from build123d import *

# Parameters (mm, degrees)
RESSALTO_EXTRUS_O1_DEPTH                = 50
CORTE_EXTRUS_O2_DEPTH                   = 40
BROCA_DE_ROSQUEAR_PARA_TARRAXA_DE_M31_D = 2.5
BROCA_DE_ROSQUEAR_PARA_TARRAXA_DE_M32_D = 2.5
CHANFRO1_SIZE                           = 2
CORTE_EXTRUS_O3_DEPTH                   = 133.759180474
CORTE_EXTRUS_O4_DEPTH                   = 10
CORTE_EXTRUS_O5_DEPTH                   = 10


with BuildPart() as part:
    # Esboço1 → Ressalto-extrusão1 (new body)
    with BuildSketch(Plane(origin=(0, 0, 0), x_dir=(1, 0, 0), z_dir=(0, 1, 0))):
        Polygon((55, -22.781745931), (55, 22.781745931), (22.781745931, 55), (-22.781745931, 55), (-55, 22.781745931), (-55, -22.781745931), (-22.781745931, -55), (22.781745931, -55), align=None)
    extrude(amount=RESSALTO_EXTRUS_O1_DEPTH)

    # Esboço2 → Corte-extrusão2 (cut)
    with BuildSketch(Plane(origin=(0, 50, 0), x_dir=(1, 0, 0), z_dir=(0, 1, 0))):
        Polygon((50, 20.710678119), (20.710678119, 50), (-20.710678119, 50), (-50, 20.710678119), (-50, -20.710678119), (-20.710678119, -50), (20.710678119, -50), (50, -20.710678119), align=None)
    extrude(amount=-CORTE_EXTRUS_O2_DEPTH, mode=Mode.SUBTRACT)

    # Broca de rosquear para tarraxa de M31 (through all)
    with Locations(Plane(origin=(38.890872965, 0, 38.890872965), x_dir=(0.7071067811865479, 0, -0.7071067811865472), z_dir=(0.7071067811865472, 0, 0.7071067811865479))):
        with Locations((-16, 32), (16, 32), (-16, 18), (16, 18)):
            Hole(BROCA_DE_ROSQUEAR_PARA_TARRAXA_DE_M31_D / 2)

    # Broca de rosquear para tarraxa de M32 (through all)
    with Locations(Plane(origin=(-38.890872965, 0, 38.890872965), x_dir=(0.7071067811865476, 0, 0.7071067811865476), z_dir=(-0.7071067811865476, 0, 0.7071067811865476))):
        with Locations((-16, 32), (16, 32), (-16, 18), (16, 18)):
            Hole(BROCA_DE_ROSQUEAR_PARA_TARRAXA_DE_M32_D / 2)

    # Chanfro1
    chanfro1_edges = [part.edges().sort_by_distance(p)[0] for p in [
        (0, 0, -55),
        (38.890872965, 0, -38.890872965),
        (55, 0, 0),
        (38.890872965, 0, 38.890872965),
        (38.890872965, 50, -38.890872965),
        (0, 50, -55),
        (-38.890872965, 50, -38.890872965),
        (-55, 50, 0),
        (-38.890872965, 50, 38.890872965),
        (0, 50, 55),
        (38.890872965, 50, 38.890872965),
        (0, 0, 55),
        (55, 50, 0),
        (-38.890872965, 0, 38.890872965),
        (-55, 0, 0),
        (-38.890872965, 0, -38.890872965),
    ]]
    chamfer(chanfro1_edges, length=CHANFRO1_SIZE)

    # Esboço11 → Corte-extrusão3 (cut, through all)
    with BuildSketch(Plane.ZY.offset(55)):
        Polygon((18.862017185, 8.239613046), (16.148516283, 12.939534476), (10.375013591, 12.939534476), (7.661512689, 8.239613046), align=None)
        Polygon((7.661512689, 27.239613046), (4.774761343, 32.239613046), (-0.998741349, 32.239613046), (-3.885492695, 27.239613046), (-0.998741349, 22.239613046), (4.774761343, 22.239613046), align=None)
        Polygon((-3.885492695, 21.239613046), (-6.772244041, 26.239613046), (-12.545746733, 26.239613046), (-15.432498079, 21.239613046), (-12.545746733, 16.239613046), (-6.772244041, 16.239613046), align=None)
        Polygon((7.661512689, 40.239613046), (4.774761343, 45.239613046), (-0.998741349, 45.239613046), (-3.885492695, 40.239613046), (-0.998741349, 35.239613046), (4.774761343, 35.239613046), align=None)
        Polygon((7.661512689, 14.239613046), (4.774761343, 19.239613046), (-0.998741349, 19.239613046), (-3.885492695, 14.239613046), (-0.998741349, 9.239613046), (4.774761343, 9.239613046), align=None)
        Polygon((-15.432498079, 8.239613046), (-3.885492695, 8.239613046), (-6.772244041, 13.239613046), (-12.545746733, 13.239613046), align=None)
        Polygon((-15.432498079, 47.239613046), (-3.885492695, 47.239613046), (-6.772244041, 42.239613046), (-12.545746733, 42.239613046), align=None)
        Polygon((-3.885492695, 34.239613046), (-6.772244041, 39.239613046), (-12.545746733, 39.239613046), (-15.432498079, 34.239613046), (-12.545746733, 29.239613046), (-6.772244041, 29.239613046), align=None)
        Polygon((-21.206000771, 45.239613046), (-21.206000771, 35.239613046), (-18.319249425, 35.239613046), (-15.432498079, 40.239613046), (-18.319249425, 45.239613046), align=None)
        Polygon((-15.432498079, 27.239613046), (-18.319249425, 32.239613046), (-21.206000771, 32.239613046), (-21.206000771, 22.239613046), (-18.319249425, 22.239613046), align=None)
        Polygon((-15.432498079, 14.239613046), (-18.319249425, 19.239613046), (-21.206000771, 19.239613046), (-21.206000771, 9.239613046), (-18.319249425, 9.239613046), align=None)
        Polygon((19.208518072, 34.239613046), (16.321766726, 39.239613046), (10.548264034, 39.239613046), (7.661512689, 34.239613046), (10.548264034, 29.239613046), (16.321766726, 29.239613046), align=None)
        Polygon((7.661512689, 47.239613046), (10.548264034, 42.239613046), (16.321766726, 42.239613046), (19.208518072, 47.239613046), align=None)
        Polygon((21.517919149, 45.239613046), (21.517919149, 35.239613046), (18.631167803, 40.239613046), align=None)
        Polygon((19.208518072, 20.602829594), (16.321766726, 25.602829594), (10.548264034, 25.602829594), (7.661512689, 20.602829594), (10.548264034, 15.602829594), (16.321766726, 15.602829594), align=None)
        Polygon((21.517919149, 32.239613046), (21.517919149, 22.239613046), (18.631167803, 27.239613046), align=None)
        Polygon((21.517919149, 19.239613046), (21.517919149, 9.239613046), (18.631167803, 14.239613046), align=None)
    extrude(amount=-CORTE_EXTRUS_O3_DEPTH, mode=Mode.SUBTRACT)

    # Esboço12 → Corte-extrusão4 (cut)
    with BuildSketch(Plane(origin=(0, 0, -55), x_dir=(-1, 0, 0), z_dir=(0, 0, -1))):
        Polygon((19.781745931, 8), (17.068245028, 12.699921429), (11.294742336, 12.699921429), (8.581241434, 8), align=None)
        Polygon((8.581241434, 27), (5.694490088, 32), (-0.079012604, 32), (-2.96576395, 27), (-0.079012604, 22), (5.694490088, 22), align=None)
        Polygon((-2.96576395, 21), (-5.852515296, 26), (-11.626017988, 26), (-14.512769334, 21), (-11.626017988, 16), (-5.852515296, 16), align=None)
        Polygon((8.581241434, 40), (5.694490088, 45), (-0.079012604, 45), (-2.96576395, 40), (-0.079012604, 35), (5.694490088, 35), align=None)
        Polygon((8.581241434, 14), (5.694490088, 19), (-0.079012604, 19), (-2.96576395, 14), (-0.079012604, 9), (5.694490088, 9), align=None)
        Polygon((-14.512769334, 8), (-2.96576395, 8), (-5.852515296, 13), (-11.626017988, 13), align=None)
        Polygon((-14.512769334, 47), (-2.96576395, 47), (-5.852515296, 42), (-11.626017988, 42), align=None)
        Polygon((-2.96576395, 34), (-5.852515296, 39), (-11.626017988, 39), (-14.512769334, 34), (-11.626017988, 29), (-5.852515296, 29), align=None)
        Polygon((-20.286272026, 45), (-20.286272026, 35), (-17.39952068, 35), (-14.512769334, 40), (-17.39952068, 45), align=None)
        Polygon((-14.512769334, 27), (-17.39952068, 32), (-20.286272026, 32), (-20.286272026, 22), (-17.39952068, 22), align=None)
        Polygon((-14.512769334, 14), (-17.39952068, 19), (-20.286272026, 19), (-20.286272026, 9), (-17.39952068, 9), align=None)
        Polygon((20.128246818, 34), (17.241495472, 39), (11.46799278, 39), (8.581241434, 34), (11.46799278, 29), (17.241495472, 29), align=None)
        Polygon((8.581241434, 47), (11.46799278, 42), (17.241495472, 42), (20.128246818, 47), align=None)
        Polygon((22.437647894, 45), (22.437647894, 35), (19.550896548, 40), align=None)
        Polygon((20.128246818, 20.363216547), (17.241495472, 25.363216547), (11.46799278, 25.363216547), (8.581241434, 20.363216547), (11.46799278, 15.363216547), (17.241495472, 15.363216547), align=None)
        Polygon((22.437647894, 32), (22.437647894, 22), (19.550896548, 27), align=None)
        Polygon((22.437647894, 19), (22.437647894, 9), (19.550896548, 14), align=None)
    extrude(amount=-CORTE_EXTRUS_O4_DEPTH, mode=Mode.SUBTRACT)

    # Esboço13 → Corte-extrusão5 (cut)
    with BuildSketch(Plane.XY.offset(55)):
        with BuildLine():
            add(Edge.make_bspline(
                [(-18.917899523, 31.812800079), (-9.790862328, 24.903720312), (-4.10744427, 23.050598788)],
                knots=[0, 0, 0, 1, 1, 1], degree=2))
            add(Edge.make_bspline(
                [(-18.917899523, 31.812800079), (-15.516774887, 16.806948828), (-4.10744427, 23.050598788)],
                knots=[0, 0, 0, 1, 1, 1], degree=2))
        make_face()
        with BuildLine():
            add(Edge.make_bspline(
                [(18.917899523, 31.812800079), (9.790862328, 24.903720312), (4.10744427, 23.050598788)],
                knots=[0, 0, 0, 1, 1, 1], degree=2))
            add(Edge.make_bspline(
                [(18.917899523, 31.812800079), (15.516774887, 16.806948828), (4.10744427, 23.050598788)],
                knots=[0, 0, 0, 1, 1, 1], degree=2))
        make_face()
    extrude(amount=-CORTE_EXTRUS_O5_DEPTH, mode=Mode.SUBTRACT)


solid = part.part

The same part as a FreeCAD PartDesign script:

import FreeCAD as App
import Part
import Sketcher
from FreeCAD import Vector
Q = App.Units.Quantity


def edges_at(feature, points):
    """Names of the edges that pass closest to the given points."""
    edges = feature.Shape.Edges
    near = lambda p: min(range(len(edges)), key=lambda i: edges[i].distToShape(Part.Vertex(*p))[0])
    return sorted({f"Edge{near(p) + 1}" for p in points})

doc = App.newDocument("Part")
body = doc.addObject("PartDesign::Body", "Body")

sketch1 = doc.addObject("Sketcher::SketchObject", "Sketch")
body.addObject(sketch1)
sketch1.AttachmentSupport = (doc.XZ_Plane, [""])
sketch1.MapMode = "FlatFace"
sketch1.addGeometry([
    Part.LineSegment(Vector(55, 23, 0), Vector(55, -23, 0)),
    Part.LineSegment(Vector(55, -23, 0), Vector(23, -55, 0)),
    Part.LineSegment(Vector(23, -55, 0), Vector(-23, -55, 0)),
    Part.LineSegment(Vector(-23, -55, 0), Vector(-55, -23, 0)),
    Part.LineSegment(Vector(-55, -23, 0), Vector(-55, 23, 0)),
    Part.LineSegment(Vector(-55, 23, 0), Vector(-23, 55, 0)),
    Part.LineSegment(Vector(-23, 55, 0), Vector(23, 55, 0)),
    Part.LineSegment(Vector(23, 55, 0), Vector(55, 23, 0)),
], False)
sketch1.addConstraint([
    Sketcher.Constraint("Coincident", 0, 2, 1, 1),
    Sketcher.Constraint("Coincident", 1, 2, 2, 1),
    Sketcher.Constraint("Coincident", 2, 2, 3, 1),
    Sketcher.Constraint("Coincident", 3, 2, 4, 1),
    Sketcher.Constraint("Coincident", 4, 2, 5, 1),
    Sketcher.Constraint("Coincident", 5, 2, 6, 1),
    Sketcher.Constraint("Coincident", 6, 2, 7, 1),
    Sketcher.Constraint("Coincident", 7, 2, 0, 1),
    Sketcher.Constraint("Vertical", 0),
    Sketcher.Constraint("Horizontal", 2),
    Sketcher.Constraint("Vertical", 4),
    Sketcher.Constraint("Horizontal", 6),
    Sketcher.Constraint("Symmetric", 0, 2, 4, 2, -1, 1),
    Sketcher.Constraint("Symmetric", 1, 2, 5, 2, -1, 1),
    Sketcher.Constraint("Perpendicular", 1, 3),
    Sketcher.Constraint("Perpendicular", 5, 7),
    Sketcher.Constraint("Horizontal", 0, 2, 3, 2),
    Sketcher.Constraint("Horizontal", 4, 2, 7, 2),
    Sketcher.Constraint("Vertical", 2, 2, 5, 2),
    Sketcher.Constraint("Equal", 6, 0),
    Sketcher.Constraint("DistanceX", -1, 1, 0, 2, 55.0),
    Sketcher.Constraint("DistanceX", 2, 2, 2, 1, 45.563492),
])
pad1 = doc.addObject("PartDesign::Pad", "Pad")
body.addObject(pad1)
pad1.Profile = sketch1
pad1.Length = 50
pad1.Reversed = True

sketch2 = doc.addObject("Sketcher::SketchObject", "Sketch001")
body.addObject(sketch2)
sketch2.AttachmentSupport = (doc.XZ_Plane, [""])
sketch2.MapMode = "FlatFace"
sketch2.AttachmentOffset = App.Placement(Vector(0, 0, -50), App.Rotation())
sketch2.addGeometry([
    Part.LineSegment(Vector(50, -21, 0), Vector(21, -50, 0)),
    Part.LineSegment(Vector(21, -50, 0), Vector(-21, -50, 0)),
    Part.LineSegment(Vector(-21, -50, 0), Vector(-50, -21, 0)),
    Part.LineSegment(Vector(-50, -21, 0), Vector(-50, 21, 0)),
    Part.LineSegment(Vector(-50, 21, 0), Vector(-21, 50, 0)),
    Part.LineSegment(Vector(-21, 50, 0), Vector(21, 50, 0)),
    Part.LineSegment(Vector(21, 50, 0), Vector(50, 21, 0)),
    Part.LineSegment(Vector(50, 21, 0), Vector(50, -21, 0)),
], False)
sketch2.addConstraint([
    Sketcher.Constraint("Coincident", 0, 2, 1, 1),
    Sketcher.Constraint("Coincident", 1, 2, 2, 1),
    Sketcher.Constraint("Coincident", 2, 2, 3, 1),
    Sketcher.Constraint("Coincident", 3, 2, 4, 1),
    Sketcher.Constraint("Coincident", 4, 2, 5, 1),
    Sketcher.Constraint("Coincident", 5, 2, 6, 1),
    Sketcher.Constraint("Coincident", 6, 2, 7, 1),
    Sketcher.Constraint("Coincident", 7, 2, 0, 1),
    Sketcher.Constraint("Horizontal", 1),
    Sketcher.Constraint("Vertical", 3),
    Sketcher.Constraint("Horizontal", 5),
    Sketcher.Constraint("Vertical", 7),
    Sketcher.Constraint("Symmetric", 0, 2, 4, 2, -1, 1),
    Sketcher.Constraint("Symmetric", 2, 2, 6, 2, -1, 1),
    Sketcher.Constraint("Perpendicular", 0, 2),
    Sketcher.Constraint("Perpendicular", 2, 4),
    Sketcher.Constraint("Perpendicular", 4, 6),
    Sketcher.Constraint("Horizontal", 3, 2, 6, 2),
    Sketcher.Constraint("Vertical", 1, 2, 4, 2),
    Sketcher.Constraint("Equal", 5, 3),
    Sketcher.Constraint("DistanceY", 0, 2, -1, 1, 50.0),
    Sketcher.Constraint("DistanceX", 1, 2, 1, 1, 41.421356),
])
pocket1 = doc.addObject("PartDesign::Pocket", "Pocket")
body.addObject(pocket1)
pocket1.Profile = sketch2
pocket1.Length = 40
pocket1.Reversed = True

sketch3 = doc.addObject("Sketcher::SketchObject", "Sketch002")
body.addObject(sketch3)
sketch3.Placement = App.Placement(Vector(38.890873, 0, 38.890873), App.Rotation(Vector(0.707106781, 0, -0.707106781), Vector(0, 0.999999999, 0), Vector(0.707106781, 0, 0.707106781), "ZXY"))
sketch3.addGeometry([
    Part.Circle(Vector(-16, 32, 0), Vector(0, 0, 1), 1.2),
    Part.Circle(Vector(16, 32, 0), Vector(0, 0, 1), 1.2),
    Part.Circle(Vector(-16, 18, 0), Vector(0, 0, 1), 1.2),
    Part.Circle(Vector(16, 18, 0), Vector(0, 0, 1), 1.2),
], False)
sketch3.addConstraint([
    Sketcher.Constraint("Equal", 0, 1),
    Sketcher.Constraint("Equal", 1, 2),
    Sketcher.Constraint("Equal", 2, 3),
    Sketcher.Constraint("Symmetric", 0, 3, 1, 3, -2),
    Sketcher.Constraint("Symmetric", 2, 3, 3, 3, -2),
    Sketcher.Constraint("Vertical", 0, 3, 2, 3),
    Sketcher.Constraint("Diameter", 0, 2.5),
    Sketcher.Constraint("DistanceX", 0, 3, -1, 1, 16.0),
    Sketcher.Constraint("DistanceY", -1, 1, 0, 3, 32.0),
    Sketcher.Constraint("DistanceY", -1, 1, 2, 3, 18.0),
])
doc.recompute()
hole = doc.addObject("PartDesign::Hole", "Hole")
body.addObject(hole)
hole.Profile = sketch3
hole.ThreadType = "None"
hole.Diameter = 2.5
hole.DepthType = "ThroughAll"

sketch4 = doc.addObject("Sketcher::SketchObject", "Sketch003")
body.addObject(sketch4)
sketch4.Placement = App.Placement(Vector(-38.890873, 0, 38.890873), App.Rotation(Vector(0.707106781, 0, 0.707106781), Vector(0, 0.999999999, 0), Vector(-0.707106781, 0, 0.707106781), "ZXY"))
sketch4.addGeometry([
    Part.Circle(Vector(-16, 32, 0), Vector(0, 0, 1), 1.2),
    Part.Circle(Vector(16, 32, 0), Vector(0, 0, 1), 1.2),
    Part.Circle(Vector(-16, 18, 0), Vector(0, 0, 1), 1.2),
    Part.Circle(Vector(16, 18, 0), Vector(0, 0, 1), 1.2),
], False)
sketch4.addConstraint([
    Sketcher.Constraint("Equal", 0, 1),
    Sketcher.Constraint("Equal", 1, 2),
    Sketcher.Constraint("Equal", 2, 3),
    Sketcher.Constraint("Symmetric", 0, 3, 1, 3, -2),
    Sketcher.Constraint("Symmetric", 2, 3, 3, 3, -2),
    Sketcher.Constraint("Vertical", 0, 3, 2, 3),
    Sketcher.Constraint("Diameter", 0, 2.5),
    Sketcher.Constraint("DistanceX", 0, 3, -1, 1, 16.0),
    Sketcher.Constraint("DistanceY", -1, 1, 0, 3, 32.0),
    Sketcher.Constraint("DistanceY", -1, 1, 2, 3, 18.0),
])
doc.recompute()
hole2 = doc.addObject("PartDesign::Hole", "Hole001")
body.addObject(hole2)
hole2.Profile = sketch4
hole2.ThreadType = "None"
hole2.Diameter = 2.5
hole2.DepthType = "ThroughAll"
doc.recompute()

chamfer = doc.addObject("PartDesign::Chamfer", "Chamfer")
body.addObject(chamfer)
chamfer.Base = (hole2, edges_at(hole2, [
    (0, 0, -55),
    (38.891, 0, -38.891),
    (55, 0, 0),
    (38.891, 0, 38.891),
    (38.891, 50, -38.891),
    (0, 50, -55),
    (-38.891, 50, -38.891),
    (-55, 50, 0),
    (-38.891, 50, 38.891),
    (0, 50, 55),
    (38.891, 50, 38.891),
    (0, 0, 55),
    (55, 50, 0),
    (-38.891, 0, 38.891),
    (-55, 0, 0),
    (-38.891, 0, -38.891),
]))
chamfer.Size = 2

sketch5 = doc.addObject("Sketcher::SketchObject", "Sketch004")
body.addObject(sketch5)
sketch5.AttachmentSupport = (doc.YZ_Plane, [""])
sketch5.MapMode = "FlatFace"
sketch5.AttachmentOffset = App.Placement(Vector(0, 0, -55), App.Rotation())
sketch5.addGeometry([
    Part.LineSegment(Vector(8.2, 18.9, 0), Vector(12.9, 16.1, 0)),
    Part.LineSegment(Vector(12.9, 16.1, 0), Vector(12.9, 10.4, 0)),
    Part.LineSegment(Vector(12.9, 10.4, 0), Vector(8.2, 7.7, 0)),
    Part.LineSegment(Vector(8.2, 7.7, 0), Vector(8.2, 18.9, 0)),
    Part.LineSegment(Vector(27.2, 7.7, 0), Vector(32.2, 4.8, 0)),
    Part.LineSegment(Vector(32.2, 4.8, 0), Vector(32.2, -1, 0)),
    Part.LineSegment(Vector(32.2, -1, 0), Vector(27.2, -3.9, 0)),
    Part.LineSegment(Vector(27.2, -3.9, 0), Vector(22.2, -1, 0)),
    Part.LineSegment(Vector(22.2, -1, 0), Vector(22.2, 4.8, 0)),
    Part.LineSegment(Vector(22.2, 4.8, 0), Vector(27.2, 7.7, 0)),
    Part.LineSegment(Vector(21.2, -3.9, 0), Vector(26.2, -6.8, 0)),
    Part.LineSegment(Vector(26.2, -6.8, 0), Vector(26.2, -12.5, 0)),
    Part.LineSegment(Vector(26.2, -12.5, 0), Vector(21.2, -15.4, 0)),
    Part.LineSegment(Vector(21.2, -15.4, 0), Vector(16.2, -12.5, 0)),
    Part.LineSegment(Vector(16.2, -12.5, 0), Vector(16.2, -6.8, 0)),
    Part.LineSegment(Vector(16.2, -6.8, 0), Vector(21.2, -3.9, 0)),
    Part.LineSegment(Vector(40.2, 7.7, 0), Vector(45.2, 4.8, 0)),
    Part.LineSegment(Vector(45.2, 4.8, 0), Vector(45.2, -1, 0)),
    Part.LineSegment(Vector(45.2, -1, 0), Vector(40.2, -3.9, 0)),
    Part.LineSegment(Vector(40.2, -3.9, 0), Vector(35.2, -1, 0)),
    Part.LineSegment(Vector(35.2, -1, 0), Vector(35.2, 4.8, 0)),
    Part.LineSegment(Vector(35.2, 4.8, 0), Vector(40.2, 7.7, 0)),
    Part.LineSegment(Vector(14.2, 7.7, 0), Vector(19.2, 4.8, 0)),
    Part.LineSegment(Vector(19.2, 4.8, 0), Vector(19.2, -1, 0)),
    Part.LineSegment(Vector(19.2, -1, 0), Vector(14.2, -3.9, 0)),
    Part.LineSegment(Vector(14.2, -3.9, 0), Vector(9.2, -1, 0)),
    Part.LineSegment(Vector(9.2, -1, 0), Vector(9.2, 4.8, 0)),
    Part.LineSegment(Vector(9.2, 4.8, 0), Vector(14.2, 7.7, 0)),
    Part.LineSegment(Vector(8.2, -15.4, 0), Vector(8.2, -3.9, 0)),
    Part.LineSegment(Vector(8.2, -3.9, 0), Vector(13.2, -6.8, 0)),
    Part.LineSegment(Vector(13.2, -6.8, 0), Vector(13.2, -12.5, 0)),
    Part.LineSegment(Vector(13.2, -12.5, 0), Vector(8.2, -15.4, 0)),
    Part.LineSegment(Vector(47.2, -3.9, 0), Vector(47.2, -15.4, 0)),
    Part.LineSegment(Vector(47.2, -15.4, 0), Vector(42.2, -12.5, 0)),
    Part.LineSegment(Vector(42.2, -12.5, 0), Vector(42.2, -6.8, 0)),
    Part.LineSegment(Vector(42.2, -6.8, 0), Vector(47.2, -3.9, 0)),
    Part.LineSegment(Vector(34.2, -3.9, 0), Vector(39.2, -6.8, 0)),
    Part.LineSegment(Vector(39.2, -6.8, 0), Vector(39.2, -12.5, 0)),
    Part.LineSegment(Vector(39.2, -12.5, 0), Vector(34.2, -15.4, 0)),
    Part.LineSegment(Vector(34.2, -15.4, 0), Vector(29.2, -12.5, 0)),
    Part.LineSegment(Vector(29.2, -12.5, 0), Vector(29.2, -6.8, 0)),
    Part.LineSegment(Vector(29.2, -6.8, 0), Vector(34.2, -3.9, 0)),
    Part.LineSegment(Vector(45.2, -21.2, 0), Vector(35.2, -21.2, 0)),
    Part.LineSegment(Vector(35.2, -21.2, 0), Vector(35.2, -18.3, 0)),
    Part.LineSegment(Vector(35.2, -18.3, 0), Vector(40.2, -15.4, 0)),
    Part.LineSegment(Vector(40.2, -15.4, 0), Vector(45.2, -18.3, 0)),
    Part.LineSegment(Vector(45.2, -18.3, 0), Vector(45.2, -21.2, 0)),
    Part.LineSegment(Vector(27.2, -15.4, 0), Vector(32.2, -18.3, 0)),
    Part.LineSegment(Vector(32.2, -18.3, 0), Vector(32.2, -21.2, 0)),
    Part.LineSegment(Vector(32.2, -21.2, 0), Vector(22.2, -21.2, 0)),
    Part.LineSegment(Vector(22.2, -21.2, 0), Vector(22.2, -18.3, 0)),
    Part.LineSegment(Vector(22.2, -18.3, 0), Vector(27.2, -15.4, 0)),
    Part.LineSegment(Vector(14.2, -15.4, 0), Vector(19.2, -18.3, 0)),
    Part.LineSegment(Vector(19.2, -18.3, 0), Vector(19.2, -21.2, 0)),
    Part.LineSegment(Vector(19.2, -21.2, 0), Vector(9.2, -21.2, 0)),
    Part.LineSegment(Vector(9.2, -21.2, 0), Vector(9.2, -18.3, 0)),
    Part.LineSegment(Vector(9.2, -18.3, 0), Vector(14.2, -15.4, 0)),
    Part.LineSegment(Vector(34.2, 19.2, 0), Vector(39.2, 16.3, 0)),
    Part.LineSegment(Vector(39.2, 16.3, 0), Vector(39.2, 10.5, 0)),
    Part.LineSegment(Vector(39.2, 10.5, 0), Vector(34.2, 7.7, 0)),
    Part.LineSegment(Vector(34.2, 7.7, 0), Vector(29.2, 10.5, 0)),
    Part.LineSegment(Vector(29.2, 10.5, 0), Vector(29.2, 16.3, 0)),
    Part.LineSegment(Vector(29.2, 16.3, 0), Vector(34.2, 19.2, 0)),
    Part.LineSegment(Vector(47.2, 7.7, 0), Vector(42.2, 10.5, 0)),
    Part.LineSegment(Vector(42.2, 10.5, 0), Vector(42.2, 16.3, 0)),
    Part.LineSegment(Vector(42.2, 16.3, 0), Vector(47.2, 19.2, 0)),
    Part.LineSegment(Vector(47.2, 19.2, 0), Vector(47.2, 7.7, 0)),
    Part.LineSegment(Vector(35.2, 21.5, 0), Vector(45.2, 21.5, 0)),
    Part.LineSegment(Vector(45.2, 21.5, 0), Vector(40.2, 18.6, 0)),
    Part.LineSegment(Vector(40.2, 18.6, 0), Vector(35.2, 21.5, 0)),
    Part.LineSegment(Vector(20.6, 19.2, 0), Vector(25.6, 16.3, 0)),
    Part.LineSegment(Vector(25.6, 16.3, 0), Vector(25.6, 10.5, 0)),
    Part.LineSegment(Vector(25.6, 10.5, 0), Vector(20.6, 7.7, 0)),
    Part.LineSegment(Vector(20.6, 7.7, 0), Vector(15.6, 10.5, 0)),
    Part.LineSegment(Vector(15.6, 10.5, 0), Vector(15.6, 16.3, 0)),
    Part.LineSegment(Vector(15.6, 16.3, 0), Vector(20.6, 19.2, 0)),
    Part.LineSegment(Vector(22.2, 21.5, 0), Vector(32.2, 21.5, 0)),
    Part.LineSegment(Vector(32.2, 21.5, 0), Vector(27.2, 18.6, 0)),
    Part.LineSegment(Vector(27.2, 18.6, 0), Vector(22.2, 21.5, 0)),
    Part.LineSegment(Vector(9.2, 21.5, 0), Vector(19.2, 21.5, 0)),
    Part.LineSegment(Vector(19.2, 21.5, 0), Vector(14.2, 18.6, 0)),
    Part.LineSegment(Vector(14.2, 18.6, 0), Vector(9.2, 21.5, 0)),
], False)
sketch5.addConstraint([
    Sketcher.Constraint("Coincident", 0, 2, 1, 1),
    Sketcher.Constraint("Coincident", 1, 2, 2, 1),
    Sketcher.Constraint("Coincident", 2, 2, 3, 1),
    Sketcher.Constraint("Coincident", 3, 2, 0, 1),
    Sketcher.Constraint("Coincident", 4, 2, 5, 1),
    Sketcher.Constraint("Coincident", 5, 2, 6, 1),
    Sketcher.Constraint("Coincident", 6, 2, 7, 1),
    Sketcher.Constraint("Coincident", 7, 2, 8, 1),
    Sketcher.Constraint("Coincident", 8, 2, 9, 1),
    Sketcher.Constraint("Coincident", 9, 2, 4, 1),
    Sketcher.Constraint("Coincident", 10, 2, 11, 1),
    Sketcher.Constraint("Coincident", 11, 2, 12, 1),
    Sketcher.Constraint("Coincident", 12, 2, 13, 1),
    Sketcher.Constraint("Coincident", 13, 2, 14, 1),
    Sketcher.Constraint("Coincident", 14, 2, 15, 1),
    Sketcher.Constraint("Coincident", 15, 2, 10, 1),
    Sketcher.Constraint("Coincident", 16, 2, 17, 1),
    Sketcher.Constraint("Coincident", 17, 2, 18, 1),
    Sketcher.Constraint("Coincident", 18, 2, 19, 1),
    Sketcher.Constraint("Coincident", 19, 2, 20, 1),
    Sketcher.Constraint("Coincident", 20, 2, 21, 1),
    Sketcher.Constraint("Coincident", 21, 2, 16, 1),
    Sketcher.Constraint("Coincident", 22, 2, 23, 1),
    Sketcher.Constraint("Coincident", 23, 2, 24, 1),
    Sketcher.Constraint("Coincident", 24, 2, 25, 1),
    Sketcher.Constraint("Coincident", 25, 2, 26, 1),
    Sketcher.Constraint("Coincident", 26, 2, 27, 1),
    Sketcher.Constraint("Coincident", 27, 2, 22, 1),
    Sketcher.Constraint("Coincident", 28, 2, 29, 1),
    Sketcher.Constraint("Coincident", 29, 2, 30, 1),
    Sketcher.Constraint("Coincident", 30, 2, 31, 1),
    Sketcher.Constraint("Coincident", 31, 2, 28, 1),
    Sketcher.Constraint("Coincident", 32, 2, 33, 1),
    Sketcher.Constraint("Coincident", 33, 2, 34, 1),
    Sketcher.Constraint("Coincident", 34, 2, 35, 1),
    Sketcher.Constraint("Coincident", 35, 2, 32, 1),
    Sketcher.Constraint("Coincident", 36, 2, 37, 1),
    Sketcher.Constraint("Coincident", 37, 2, 38, 1),
    Sketcher.Constraint("Coincident", 38, 2, 39, 1),
    Sketcher.Constraint("Coincident", 39, 2, 40, 1),
    Sketcher.Constraint("Coincident", 40, 2, 41, 1),
    Sketcher.Constraint("Coincident", 41, 2, 36, 1),
    Sketcher.Constraint("Coincident", 42, 2, 43, 1),
    Sketcher.Constraint("Coincident", 43, 2, 44, 1),
    Sketcher.Constraint("Coincident", 44, 2, 45, 1),
    Sketcher.Constraint("Coincident", 45, 2, 46, 1),
    Sketcher.Constraint("Coincident", 46, 2, 42, 1),
    Sketcher.Constraint("Coincident", 47, 2, 48, 1),
    Sketcher.Constraint("Coincident", 48, 2, 49, 1),
    Sketcher.Constraint("Coincident", 49, 2, 50, 1),
    Sketcher.Constraint("Coincident", 50, 2, 51, 1),
    Sketcher.Constraint("Coincident", 51, 2, 47, 1),
    Sketcher.Constraint("Coincident", 52, 2, 53, 1),
    Sketcher.Constraint("Coincident", 53, 2, 54, 1),
    Sketcher.Constraint("Coincident", 54, 2, 55, 1),
    Sketcher.Constraint("Coincident", 55, 2, 56, 1),
    Sketcher.Constraint("Coincident", 56, 2, 52, 1),
    Sketcher.Constraint("Coincident", 57, 2, 58, 1),
    Sketcher.Constraint("Coincident", 58, 2, 59, 1),
    Sketcher.Constraint("Coincident", 59, 2, 60, 1),
    Sketcher.Constraint("Coincident", 60, 2, 61, 1),
    Sketcher.Constraint("Coincident", 61, 2, 62, 1),
    Sketcher.Constraint("Coincident", 62, 2, 57, 1),
    Sketcher.Constraint("Coincident", 63, 2, 64, 1),
    Sketcher.Constraint("Coincident", 64, 2, 65, 1),
    Sketcher.Constraint("Coincident", 65, 2, 66, 1),
    Sketcher.Constraint("Coincident", 66, 2, 63, 1),
    Sketcher.Constraint("Coincident", 67, 2, 68, 1),
    Sketcher.Constraint("Coincident", 68, 2, 69, 1),
    Sketcher.Constraint("Coincident", 69, 2, 67, 1),
    Sketcher.Constraint("Coincident", 70, 2, 71, 1),
    Sketcher.Constraint("Coincident", 71, 2, 72, 1),
    Sketcher.Constraint("Coincident", 72, 2, 73, 1),
    Sketcher.Constraint("Coincident", 73, 2, 74, 1),
    Sketcher.Constraint("Coincident", 74, 2, 75, 1),
    Sketcher.Constraint("Coincident", 75, 2, 70, 1),
    Sketcher.Constraint("Coincident", 76, 2, 77, 1),
    Sketcher.Constraint("Coincident", 77, 2, 78, 1),
    Sketcher.Constraint("Coincident", 78, 2, 76, 1),
    Sketcher.Constraint("Coincident", 79, 2, 80, 1),
    Sketcher.Constraint("Coincident", 80, 2, 81, 1),
    Sketcher.Constraint("Coincident", 81, 2, 79, 1),
    Sketcher.Constraint("Vertical", 1),
    Sketcher.Constraint("Vertical", 3),
    Sketcher.Constraint("Vertical", 5),
    Sketcher.Constraint("Vertical", 8),
    Sketcher.Constraint("Vertical", 11),
    Sketcher.Constraint("Vertical", 14),
    Sketcher.Constraint("Vertical", 17),
    Sketcher.Constraint("Vertical", 20),
    Sketcher.Constraint("Vertical", 23),
    Sketcher.Constraint("Vertical", 26),
    Sketcher.Constraint("Vertical", 28),
    Sketcher.Constraint("Vertical", 30),
    Sketcher.Constraint("Vertical", 32),
    Sketcher.Constraint("Vertical", 34),
    Sketcher.Constraint("Vertical", 37),
    Sketcher.Constraint("Vertical", 40),
    Sketcher.Constraint("Horizontal", 42),
    Sketcher.Constraint("Vertical", 43),
    Sketcher.Constraint("Vertical", 46),
    Sketcher.Constraint("Vertical", 48),
    Sketcher.Constraint("Horizontal", 49),
    Sketcher.Constraint("Vertical", 50),
    Sketcher.Constraint("Vertical", 53),
    Sketcher.Constraint("Horizontal", 54),
    Sketcher.Constraint("Vertical", 55),
    Sketcher.Constraint("Vertical", 58),
    Sketcher.Constraint("Vertical", 61),
    Sketcher.Constraint("Vertical", 64),
    Sketcher.Constraint("Vertical", 66),
    Sketcher.Constraint("Horizontal", 67),
    Sketcher.Constraint("Vertical", 71),
    Sketcher.Constraint("Vertical", 74),
    Sketcher.Constraint("Horizontal", 76),
    Sketcher.Constraint("Horizontal", 79),
    Sketcher.Constraint("Parallel", 0, 4),
    Sketcher.Constraint("Parallel", 2, 6),
    Sketcher.Constraint("Parallel", 4, 7),
    Sketcher.Constraint("Parallel", 6, 9),
    Sketcher.Constraint("Parallel", 7, 10),
    Sketcher.Constraint("Parallel", 9, 12),
    Sketcher.Constraint("Parallel", 10, 13),
    Sketcher.Constraint("Parallel", 12, 15),
    Sketcher.Constraint("Parallel", 13, 16),
    Sketcher.Constraint("Parallel", 15, 18),
    Sketcher.Constraint("Parallel", 16, 19),
    Sketcher.Constraint("Parallel", 18, 21),
    Sketcher.Constraint("Parallel", 19, 22),
    Sketcher.Constraint("Parallel", 21, 24),
    Sketcher.Constraint("Parallel", 22, 25),
    Sketcher.Constraint("Parallel", 24, 27),
    Sketcher.Constraint("Parallel", 25, 29),
    Sketcher.Constraint("Parallel", 27, 31),
    Sketcher.Constraint("Parallel", 29, 33),
    Sketcher.Constraint("Parallel", 31, 35),
    Sketcher.Constraint("Parallel", 33, 36),
    Sketcher.Constraint("Parallel", 35, 38),
    Sketcher.Constraint("Parallel", 36, 39),
    Sketcher.Constraint("Parallel", 38, 41),
    Sketcher.Constraint("Parallel", 41, 44),
    Sketcher.Constraint("Parallel", 39, 45),
    Sketcher.Constraint("Parallel", 45, 47),
    Sketcher.Constraint("Parallel", 44, 51),
    Sketcher.Constraint("Parallel", 47, 52),
    Sketcher.Constraint("Parallel", 51, 56),
    Sketcher.Constraint("Parallel", 52, 57),
    Sketcher.Constraint("Parallel", 56, 59),
    Sketcher.Constraint("Parallel", 57, 60),
    Sketcher.Constraint("Parallel", 59, 62),
    Sketcher.Constraint("Parallel", 60, 63),
    Sketcher.Constraint("Parallel", 62, 65),
    Sketcher.Constraint("Parallel", 65, 68),
    Sketcher.Constraint("Parallel", 63, 69),
    Sketcher.Constraint("Parallel", 69, 70),
    Sketcher.Constraint("Parallel", 68, 72),
    Sketcher.Constraint("Parallel", 70, 73),
    Sketcher.Constraint("Parallel", 72, 75),
    Sketcher.Constraint("Parallel", 75, 77),
    Sketcher.Constraint("Parallel", 73, 78),
    Sketcher.Constraint("Parallel", 77, 80),
    Sketcher.Constraint("Parallel", 78, 81),
    Sketcher.Constraint("Horizontal", 5, 2, 7, 2),
    Sketcher.Constraint("Horizontal", 4, 2, 8, 2),
    Sketcher.Constraint("Horizontal", 2, 2, 9, 2),
    Sketcher.Constraint("Horizontal", 11, 2, 13, 2),
    Sketcher.Constraint("Horizontal", 10, 2, 14, 2),
    Sketcher.Constraint("Horizontal", 6, 2, 15, 2),
    Sketcher.Constraint("Horizontal", 8, 2, 16, 2),
    Sketcher.Constraint("Horizontal", 7, 2, 17, 2),
    Sketcher.Constraint("Horizontal", 15, 2, 18, 2),
    Sketcher.Constraint("Horizontal", 17, 2, 19, 2),
    Sketcher.Constraint("Horizontal", 16, 2, 20, 2),
    Sketcher.Constraint("Horizontal", 20, 2, 22, 2),
    Sketcher.Constraint("Horizontal", 19, 2, 23, 2),
    Sketcher.Constraint("Horizontal", 18, 2, 24, 2),
    Sketcher.Constraint("Horizontal", 23, 2, 25, 2),
    Sketcher.Constraint("Horizontal", 22, 2, 26, 2),
    Sketcher.Constraint("Horizontal", 24, 2, 28, 2),
    Sketcher.Constraint("Horizontal", 14, 2, 29, 2),
    Sketcher.Constraint("Horizontal", 13, 2, 30, 2),
    Sketcher.Constraint("Horizontal", 12, 2, 31, 2),
    Sketcher.Constraint("Horizontal", 31, 2, 32, 2),
    Sketcher.Constraint("Horizontal", 30, 2, 33, 2),
    Sketcher.Constraint("Horizontal", 29, 2, 34, 2),
    Sketcher.Constraint("Horizontal", 34, 2, 36, 2),
    Sketcher.Constraint("Horizontal", 33, 2, 37, 2),
    Sketcher.Constraint("Horizontal", 32, 2, 38, 2),
    Sketcher.Constraint("Horizontal", 37, 2, 39, 2),
    Sketcher.Constraint("Horizontal", 36, 2, 40, 2),
    Sketcher.Constraint("Horizontal", 38, 2, 44, 2),
    Sketcher.Constraint("Horizontal", 43, 2, 45, 2),
    Sketcher.Constraint("Horizontal", 45, 2, 47, 2),
    Sketcher.Constraint("Horizontal", 46, 2, 48, 2),
    Sketcher.Constraint("Horizontal", 47, 2, 50, 2),
    Sketcher.Constraint("Horizontal", 44, 2, 51, 2),
    Sketcher.Constraint("Horizontal", 50, 2, 52, 2),
    Sketcher.Constraint("Horizontal", 49, 2, 53, 2),
    Sketcher.Constraint("Horizontal", 52, 2, 55, 2),
    Sketcher.Constraint("Horizontal", 51, 2, 56, 2),
    Sketcher.Constraint("Horizontal", 27, 2, 59, 2),
    Sketcher.Constraint("Horizontal", 58, 2, 60, 2),
    Sketcher.Constraint("Horizontal", 57, 2, 61, 2),
    Sketcher.Constraint("Horizontal", 60, 2, 63, 2),
    Sketcher.Constraint("Horizontal", 61, 2, 64, 2),
    Sketcher.Constraint("Horizontal", 62, 2, 65, 2),
    Sketcher.Constraint("Horizontal", 64, 2, 70, 2),
    Sketcher.Constraint("Horizontal", 63, 2, 71, 2),
    Sketcher.Constraint("Horizontal", 66, 2, 72, 2),
    Sketcher.Constraint("Horizontal", 71, 2, 73, 2),
    Sketcher.Constraint("Horizontal", 70, 2, 74, 2),
    Sketcher.Constraint("Horizontal", 69, 2, 76, 2),
    Sketcher.Constraint("Horizontal", 68, 2, 77, 2),
    Sketcher.Constraint("Horizontal", 78, 2, 79, 2),
    Sketcher.Constraint("Horizontal", 77, 2, 80, 2),
    Sketcher.Constraint("Vertical", 3, 2, 28, 2),
    Sketcher.Constraint("Vertical", 20, 2, 42, 2),
    Sketcher.Constraint("Vertical", 21, 2, 44, 2),
    Sketcher.Constraint("Vertical", 5, 2, 47, 2),
    Sketcher.Constraint("Vertical", 23, 2, 52, 2),
    Sketcher.Constraint("Vertical", 37, 2, 57, 2),
    Sketcher.Constraint("Vertical", 41, 2, 59, 2),
    Sketcher.Constraint("Vertical", 34, 2, 63, 2),
    Sketcher.Constraint("Vertical", 46, 2, 67, 2),
    Sketcher.Constraint("Vertical", 44, 2, 68, 2),
    Sketcher.Constraint("Vertical", 48, 2, 76, 2),
    Sketcher.Constraint("Vertical", 53, 2, 79, 2),
    Sketcher.Constraint("Equal", 1, 5),
    Sketcher.Constraint("Equal", 8, 11),
    Sketcher.Constraint("Equal", 40, 58),
    Sketcher.Constraint("Equal", 9, 10),
    Sketcher.Constraint("DistanceX", 42, 2, 42, 1, 10.0),
    Sketcher.Constraint("Angle", 0, Q("-30 deg")),
    Sketcher.Constraint("Distance", 0, 5.427002),
    Sketcher.Constraint("DistanceY", 42, 2, -1, 1, 21.206001),
    Sketcher.Constraint("DistanceY", 43, 1, 43, 2, 2.886751),
    Sketcher.Constraint("DistanceY", 1, 2, 1, 1, 5.773503),
    Sketcher.Constraint("DistanceY", -1, 1, 67, 2, 21.517919),
    Sketcher.Constraint("DistanceX", -1, 1, 70, 2, 25.60283),
    Sketcher.Constraint("DistanceX", -1, 1, 0, 2, 12.939534),
    Sketcher.Constraint("DistanceX", -1, 1, 4, 2, 32.239613),
    Sketcher.Constraint("DistanceX", -1, 1, 10, 2, 26.239613),
    Sketcher.Constraint("DistanceX", -1, 1, 16, 2, 45.239613),
    Sketcher.Constraint("DistanceX", -1, 1, 22, 2, 19.239613),
    Sketcher.Constraint("DistanceX", -1, 1, 32, 2, 47.239613),
    Sketcher.Constraint("DistanceX", -1, 1, 36, 2, 39.239613),
])
pocket2 = doc.addObject("PartDesign::Pocket", "Pocket001")
body.addObject(pocket2)
pocket2.Profile = sketch5
pocket2.Type = "ThroughAll"
pocket2.Reversed = True

sketch6 = doc.addObject("Sketcher::SketchObject", "Sketch005")
body.addObject(sketch6)
sketch6.AttachmentSupport = (doc.XY_Plane, [""])
sketch6.MapMode = "FlatFace"
sketch6.AttachmentOffset = App.Placement(Vector(0, 0, -55), App.Rotation())
sketch6.addGeometry([
    Part.LineSegment(Vector(-19.8, 8, 0), Vector(-17.1, 12.7, 0)),
    Part.LineSegment(Vector(-17.1, 12.7, 0), Vector(-11.3, 12.7, 0)),
    Part.LineSegment(Vector(-11.3, 12.7, 0), Vector(-8.6, 8, 0)),
    Part.LineSegment(Vector(-8.6, 8, 0), Vector(-19.8, 8, 0)),
    Part.LineSegment(Vector(-8.6, 27, 0), Vector(-5.7, 32, 0)),
    Part.LineSegment(Vector(-5.7, 32, 0), Vector(0.1, 32, 0)),
    Part.LineSegment(Vector(0.1, 32, 0), Vector(3, 27, 0)),
    Part.LineSegment(Vector(3, 27, 0), Vector(0.1, 22, 0)),
    Part.LineSegment(Vector(0.1, 22, 0), Vector(-5.7, 22, 0)),
    Part.LineSegment(Vector(-5.7, 22, 0), Vector(-8.6, 27, 0)),
    Part.LineSegment(Vector(3, 21, 0), Vector(5.9, 26, 0)),
    Part.LineSegment(Vector(5.9, 26, 0), Vector(11.6, 26, 0)),
    Part.LineSegment(Vector(11.6, 26, 0), Vector(14.5, 21, 0)),
    Part.LineSegment(Vector(14.5, 21, 0), Vector(11.6, 16, 0)),
    Part.LineSegment(Vector(11.6, 16, 0), Vector(5.9, 16, 0)),
    Part.LineSegment(Vector(5.9, 16, 0), Vector(3, 21, 0)),
    Part.LineSegment(Vector(-8.6, 40, 0), Vector(-5.7, 45, 0)),
    Part.LineSegment(Vector(-5.7, 45, 0), Vector(0.1, 45, 0)),
    Part.LineSegment(Vector(0.1, 45, 0), Vector(3, 40, 0)),
    Part.LineSegment(Vector(3, 40, 0), Vector(0.1, 35, 0)),
    Part.LineSegment(Vector(0.1, 35, 0), Vector(-5.7, 35, 0)),
    Part.LineSegment(Vector(-5.7, 35, 0), Vector(-8.6, 40, 0)),
    Part.LineSegment(Vector(-8.6, 14, 0), Vector(-5.7, 19, 0)),
    Part.LineSegment(Vector(-5.7, 19, 0), Vector(0.1, 19, 0)),
    Part.LineSegment(Vector(0.1, 19, 0), Vector(3, 14, 0)),
    Part.LineSegment(Vector(3, 14, 0), Vector(0.1, 9, 0)),
    Part.LineSegment(Vector(0.1, 9, 0), Vector(-5.7, 9, 0)),
    Part.LineSegment(Vector(-5.7, 9, 0), Vector(-8.6, 14, 0)),
    Part.LineSegment(Vector(14.5, 8, 0), Vector(3, 8, 0)),
    Part.LineSegment(Vector(3, 8, 0), Vector(5.9, 13, 0)),
    Part.LineSegment(Vector(5.9, 13, 0), Vector(11.6, 13, 0)),
    Part.LineSegment(Vector(11.6, 13, 0), Vector(14.5, 8, 0)),
    Part.LineSegment(Vector(3, 47, 0), Vector(14.5, 47, 0)),
    Part.LineSegment(Vector(14.5, 47, 0), Vector(11.6, 42, 0)),
    Part.LineSegment(Vector(11.6, 42, 0), Vector(5.9, 42, 0)),
    Part.LineSegment(Vector(5.9, 42, 0), Vector(3, 47, 0)),
    Part.LineSegment(Vector(3, 34, 0), Vector(5.9, 39, 0)),
    Part.LineSegment(Vector(5.9, 39, 0), Vector(11.6, 39, 0)),
    Part.LineSegment(Vector(11.6, 39, 0), Vector(14.5, 34, 0)),
    Part.LineSegment(Vector(14.5, 34, 0), Vector(11.6, 29, 0)),
    Part.LineSegment(Vector(11.6, 29, 0), Vector(5.9, 29, 0)),
    Part.LineSegment(Vector(5.9, 29, 0), Vector(3, 34, 0)),
    Part.LineSegment(Vector(20.3, 45, 0), Vector(20.3, 35, 0)),
    Part.LineSegment(Vector(20.3, 35, 0), Vector(17.4, 35, 0)),
    Part.LineSegment(Vector(17.4, 35, 0), Vector(14.5, 40, 0)),
    Part.LineSegment(Vector(14.5, 40, 0), Vector(17.4, 45, 0)),
    Part.LineSegment(Vector(17.4, 45, 0), Vector(20.3, 45, 0)),
    Part.LineSegment(Vector(14.5, 27, 0), Vector(17.4, 32, 0)),
    Part.LineSegment(Vector(17.4, 32, 0), Vector(20.3, 32, 0)),
    Part.LineSegment(Vector(20.3, 32, 0), Vector(20.3, 22, 0)),
    Part.LineSegment(Vector(20.3, 22, 0), Vector(17.4, 22, 0)),
    Part.LineSegment(Vector(17.4, 22, 0), Vector(14.5, 27, 0)),
    Part.LineSegment(Vector(14.5, 14, 0), Vector(17.4, 19, 0)),
    Part.LineSegment(Vector(17.4, 19, 0), Vector(20.3, 19, 0)),
    Part.LineSegment(Vector(20.3, 19, 0), Vector(20.3, 9, 0)),
    Part.LineSegment(Vector(20.3, 9, 0), Vector(17.4, 9, 0)),
    Part.LineSegment(Vector(17.4, 9, 0), Vector(14.5, 14, 0)),
    Part.LineSegment(Vector(-20.1, 34, 0), Vector(-17.2, 39, 0)),
    Part.LineSegment(Vector(-17.2, 39, 0), Vector(-11.5, 39, 0)),
    Part.LineSegment(Vector(-11.5, 39, 0), Vector(-8.6, 34, 0)),
    Part.LineSegment(Vector(-8.6, 34, 0), Vector(-11.5, 29, 0)),
    Part.LineSegment(Vector(-11.5, 29, 0), Vector(-17.2, 29, 0)),
    Part.LineSegment(Vector(-17.2, 29, 0), Vector(-20.1, 34, 0)),
    Part.LineSegment(Vector(-8.6, 47, 0), Vector(-11.5, 42, 0)),
    Part.LineSegment(Vector(-11.5, 42, 0), Vector(-17.2, 42, 0)),
    Part.LineSegment(Vector(-17.2, 42, 0), Vector(-20.1, 47, 0)),
    Part.LineSegment(Vector(-20.1, 47, 0), Vector(-8.6, 47, 0)),
    Part.LineSegment(Vector(-22.4, 35, 0), Vector(-22.4, 45, 0)),
    Part.LineSegment(Vector(-22.4, 45, 0), Vector(-19.6, 40, 0)),
    Part.LineSegment(Vector(-19.6, 40, 0), Vector(-22.4, 35, 0)),
    Part.LineSegment(Vector(-20.1, 20.4, 0), Vector(-17.2, 25.4, 0)),
    Part.LineSegment(Vector(-17.2, 25.4, 0), Vector(-11.5, 25.4, 0)),
    Part.LineSegment(Vector(-11.5, 25.4, 0), Vector(-8.6, 20.4, 0)),
    Part.LineSegment(Vector(-8.6, 20.4, 0), Vector(-11.5, 15.4, 0)),
    Part.LineSegment(Vector(-11.5, 15.4, 0), Vector(-17.2, 15.4, 0)),
    Part.LineSegment(Vector(-17.2, 15.4, 0), Vector(-20.1, 20.4, 0)),
    Part.LineSegment(Vector(-22.4, 22, 0), Vector(-22.4, 32, 0)),
    Part.LineSegment(Vector(-22.4, 32, 0), Vector(-19.6, 27, 0)),
    Part.LineSegment(Vector(-19.6, 27, 0), Vector(-22.4, 22, 0)),
    Part.LineSegment(Vector(-22.4, 9, 0), Vector(-22.4, 19, 0)),
    Part.LineSegment(Vector(-22.4, 19, 0), Vector(-19.6, 14, 0)),
    Part.LineSegment(Vector(-19.6, 14, 0), Vector(-22.4, 9, 0)),
], False)
sketch6.addConstraint([
    Sketcher.Constraint("Coincident", 0, 2, 1, 1),
    Sketcher.Constraint("Coincident", 1, 2, 2, 1),
    Sketcher.Constraint("Coincident", 2, 2, 3, 1),
    Sketcher.Constraint("Coincident", 3, 2, 0, 1),
    Sketcher.Constraint("Coincident", 4, 2, 5, 1),
    Sketcher.Constraint("Coincident", 5, 2, 6, 1),
    Sketcher.Constraint("Coincident", 6, 2, 7, 1),
    Sketcher.Constraint("Coincident", 7, 2, 8, 1),
    Sketcher.Constraint("Coincident", 8, 2, 9, 1),
    Sketcher.Constraint("Coincident", 9, 2, 4, 1),
    Sketcher.Constraint("Coincident", 10, 2, 11, 1),
    Sketcher.Constraint("Coincident", 11, 2, 12, 1),
    Sketcher.Constraint("Coincident", 12, 2, 13, 1),
    Sketcher.Constraint("Coincident", 13, 2, 14, 1),
    Sketcher.Constraint("Coincident", 14, 2, 15, 1),
    Sketcher.Constraint("Coincident", 15, 2, 10, 1),
    Sketcher.Constraint("Coincident", 16, 2, 17, 1),
    Sketcher.Constraint("Coincident", 17, 2, 18, 1),
    Sketcher.Constraint("Coincident", 18, 2, 19, 1),
    Sketcher.Constraint("Coincident", 19, 2, 20, 1),
    Sketcher.Constraint("Coincident", 20, 2, 21, 1),
    Sketcher.Constraint("Coincident", 21, 2, 16, 1),
    Sketcher.Constraint("Coincident", 22, 2, 23, 1),
    Sketcher.Constraint("Coincident", 23, 2, 24, 1),
    Sketcher.Constraint("Coincident", 24, 2, 25, 1),
    Sketcher.Constraint("Coincident", 25, 2, 26, 1),
    Sketcher.Constraint("Coincident", 26, 2, 27, 1),
    Sketcher.Constraint("Coincident", 27, 2, 22, 1),
    Sketcher.Constraint("Coincident", 28, 2, 29, 1),
    Sketcher.Constraint("Coincident", 29, 2, 30, 1),
    Sketcher.Constraint("Coincident", 30, 2, 31, 1),
    Sketcher.Constraint("Coincident", 31, 2, 28, 1),
    Sketcher.Constraint("Coincident", 32, 2, 33, 1),
    Sketcher.Constraint("Coincident", 33, 2, 34, 1),
    Sketcher.Constraint("Coincident", 34, 2, 35, 1),
    Sketcher.Constraint("Coincident", 35, 2, 32, 1),
    Sketcher.Constraint("Coincident", 36, 2, 37, 1),
    Sketcher.Constraint("Coincident", 37, 2, 38, 1),
    Sketcher.Constraint("Coincident", 38, 2, 39, 1),
    Sketcher.Constraint("Coincident", 39, 2, 40, 1),
    Sketcher.Constraint("Coincident", 40, 2, 41, 1),
    Sketcher.Constraint("Coincident", 41, 2, 36, 1),
    Sketcher.Constraint("Coincident", 42, 2, 43, 1),
    Sketcher.Constraint("Coincident", 43, 2, 44, 1),
    Sketcher.Constraint("Coincident", 44, 2, 45, 1),
    Sketcher.Constraint("Coincident", 45, 2, 46, 1),
    Sketcher.Constraint("Coincident", 46, 2, 42, 1),
    Sketcher.Constraint("Coincident", 47, 2, 48, 1),
    Sketcher.Constraint("Coincident", 48, 2, 49, 1),
    Sketcher.Constraint("Coincident", 49, 2, 50, 1),
    Sketcher.Constraint("Coincident", 50, 2, 51, 1),
    Sketcher.Constraint("Coincident", 51, 2, 47, 1),
    Sketcher.Constraint("Coincident", 52, 2, 53, 1),
    Sketcher.Constraint("Coincident", 53, 2, 54, 1),
    Sketcher.Constraint("Coincident", 54, 2, 55, 1),
    Sketcher.Constraint("Coincident", 55, 2, 56, 1),
    Sketcher.Constraint("Coincident", 56, 2, 52, 1),
    Sketcher.Constraint("Coincident", 57, 2, 58, 1),
    Sketcher.Constraint("Coincident", 58, 2, 59, 1),
    Sketcher.Constraint("Coincident", 59, 2, 60, 1),
    Sketcher.Constraint("Coincident", 60, 2, 61, 1),
    Sketcher.Constraint("Coincident", 61, 2, 62, 1),
    Sketcher.Constraint("Coincident", 62, 2, 57, 1),
    Sketcher.Constraint("Coincident", 63, 2, 64, 1),
    Sketcher.Constraint("Coincident", 64, 2, 65, 1),
    Sketcher.Constraint("Coincident", 65, 2, 66, 1),
    Sketcher.Constraint("Coincident", 66, 2, 63, 1),
    Sketcher.Constraint("Coincident", 67, 2, 68, 1),
    Sketcher.Constraint("Coincident", 68, 2, 69, 1),
    Sketcher.Constraint("Coincident", 69, 2, 67, 1),
    Sketcher.Constraint("Coincident", 70, 2, 71, 1),
    Sketcher.Constraint("Coincident", 71, 2, 72, 1),
    Sketcher.Constraint("Coincident", 72, 2, 73, 1),
    Sketcher.Constraint("Coincident", 73, 2, 74, 1),
    Sketcher.Constraint("Coincident", 74, 2, 75, 1),
    Sketcher.Constraint("Coincident", 75, 2, 70, 1),
    Sketcher.Constraint("Coincident", 76, 2, 77, 1),
    Sketcher.Constraint("Coincident", 77, 2, 78, 1),
    Sketcher.Constraint("Coincident", 78, 2, 76, 1),
    Sketcher.Constraint("Coincident", 79, 2, 80, 1),
    Sketcher.Constraint("Coincident", 80, 2, 81, 1),
    Sketcher.Constraint("Coincident", 81, 2, 79, 1),
    Sketcher.Constraint("Horizontal", 1),
    Sketcher.Constraint("Horizontal", 3),
    Sketcher.Constraint("Horizontal", 5),
    Sketcher.Constraint("Horizontal", 8),
    Sketcher.Constraint("Horizontal", 11),
    Sketcher.Constraint("Horizontal", 14),
    Sketcher.Constraint("Horizontal", 17),
    Sketcher.Constraint("Horizontal", 20),
    Sketcher.Constraint("Horizontal", 23),
    Sketcher.Constraint("Horizontal", 26),
    Sketcher.Constraint("Horizontal", 28),
    Sketcher.Constraint("Horizontal", 30),
    Sketcher.Constraint("Horizontal", 32),
    Sketcher.Constraint("Horizontal", 34),
    Sketcher.Constraint("Horizontal", 37),
    Sketcher.Constraint("Horizontal", 40),
    Sketcher.Constraint("Vertical", 42),
    Sketcher.Constraint("Horizontal", 43),
    Sketcher.Constraint("Horizontal", 46),
    Sketcher.Constraint("Horizontal", 48),
    Sketcher.Constraint("Vertical", 49),
    Sketcher.Constraint("Horizontal", 50),
    Sketcher.Constraint("Horizontal", 53),
    Sketcher.Constraint("Vertical", 54),
    Sketcher.Constraint("Horizontal", 55),
    Sketcher.Constraint("Horizontal", 58),
    Sketcher.Constraint("Horizontal", 61),
    Sketcher.Constraint("Horizontal", 64),
    Sketcher.Constraint("Horizontal", 66),
    Sketcher.Constraint("Vertical", 67),
    Sketcher.Constraint("Horizontal", 71),
    Sketcher.Constraint("Horizontal", 74),
    Sketcher.Constraint("Vertical", 76),
    Sketcher.Constraint("Vertical", 79),
    Sketcher.Constraint("Parallel", 0, 4),
    Sketcher.Constraint("Parallel", 2, 6),
    Sketcher.Constraint("Parallel", 4, 7),
    Sketcher.Constraint("Parallel", 6, 9),
    Sketcher.Constraint("Parallel", 7, 10),
    Sketcher.Constraint("Parallel", 9, 12),
    Sketcher.Constraint("Parallel", 10, 13),
    Sketcher.Constraint("Parallel", 12, 15),
    Sketcher.Constraint("Parallel", 13, 16),
    Sketcher.Constraint("Parallel", 15, 18),
    Sketcher.Constraint("Parallel", 16, 19),
    Sketcher.Constraint("Parallel", 18, 21),
    Sketcher.Constraint("Parallel", 19, 22),
    Sketcher.Constraint("Parallel", 21, 24),
    Sketcher.Constraint("Parallel", 22, 25),
    Sketcher.Constraint("Parallel", 24, 27),
    Sketcher.Constraint("Parallel", 25, 29),
    Sketcher.Constraint("Parallel", 27, 31),
    Sketcher.Constraint("Parallel", 29, 33),
    Sketcher.Constraint("Parallel", 31, 35),
    Sketcher.Constraint("Parallel", 33, 36),
    Sketcher.Constraint("Parallel", 35, 38),
    Sketcher.Constraint("Parallel", 36, 39),
    Sketcher.Constraint("Parallel", 38, 41),
    Sketcher.Constraint("Parallel", 41, 44),
    Sketcher.Constraint("Parallel", 39, 45),
    Sketcher.Constraint("Parallel", 45, 47),
    Sketcher.Constraint("Parallel", 44, 51),
    Sketcher.Constraint("Parallel", 47, 52),
    Sketcher.Constraint("Parallel", 51, 56),
    Sketcher.Constraint("Parallel", 52, 57),
    Sketcher.Constraint("Parallel", 56, 59),
    Sketcher.Constraint("Parallel", 57, 60),
    Sketcher.Constraint("Parallel", 59, 62),
    Sketcher.Constraint("Parallel", 60, 63),
    Sketcher.Constraint("Parallel", 62, 65),
    Sketcher.Constraint("Parallel", 65, 68),
    Sketcher.Constraint("Parallel", 63, 69),
    Sketcher.Constraint("Parallel", 69, 70),
    Sketcher.Constraint("Parallel", 68, 72),
    Sketcher.Constraint("Parallel", 70, 73),
    Sketcher.Constraint("Parallel", 72, 75),
    Sketcher.Constraint("Parallel", 75, 77),
    Sketcher.Constraint("Parallel", 73, 78),
    Sketcher.Constraint("Parallel", 77, 80),
    Sketcher.Constraint("Parallel", 78, 81),
    Sketcher.Constraint("Horizontal", 6, 2, 9, 2),
    Sketcher.Constraint("Horizontal", 12, 2, 15, 2),
    Sketcher.Constraint("Horizontal", 18, 2, 21, 2),
    Sketcher.Constraint("Horizontal", 24, 2, 27, 2),
    Sketcher.Constraint("Horizontal", 3, 2, 28, 2),
    Sketcher.Constraint("Horizontal", 38, 2, 41, 2),
    Sketcher.Constraint("Horizontal", 20, 2, 42, 2),
    Sketcher.Constraint("Horizontal", 21, 2, 44, 2),
    Sketcher.Constraint("Horizontal", 17, 2, 45, 2),
    Sketcher.Constraint("Horizontal", 5, 2, 47, 2),
    Sketcher.Constraint("Horizontal", 8, 2, 49, 2),
    Sketcher.Constraint("Horizontal", 9, 2, 51, 2),
    Sketcher.Constraint("Horizontal", 23, 2, 52, 2),
    Sketcher.Constraint("Horizontal", 26, 2, 54, 2),
    Sketcher.Constraint("Horizontal", 27, 2, 56, 2),
    Sketcher.Constraint("Horizontal", 37, 2, 57, 2),
    Sketcher.Constraint("Horizontal", 41, 2, 59, 2),
    Sketcher.Constraint("Horizontal", 40, 2, 60, 2),
    Sketcher.Constraint("Horizontal", 59, 2, 62, 2),
    Sketcher.Constraint("Horizontal", 34, 2, 63, 2),
    Sketcher.Constraint("Horizontal", 35, 2, 65, 2),
    Sketcher.Constraint("Horizontal", 46, 2, 67, 2),
    Sketcher.Constraint("Horizontal", 44, 2, 68, 2),
    Sketcher.Constraint("Horizontal", 43, 2, 69, 2),
    Sketcher.Constraint("Horizontal", 72, 2, 75, 2),
    Sketcher.Constraint("Horizontal", 48, 2, 76, 2),
    Sketcher.Constraint("Horizontal", 51, 2, 77, 2),
    Sketcher.Constraint("Horizontal", 50, 2, 78, 2),
    Sketcher.Constraint("Horizontal", 53, 2, 79, 2),
    Sketcher.Constraint("Horizontal", 56, 2, 80, 2),
    Sketcher.Constraint("Horizontal", 55, 2, 81, 2),
    Sketcher.Constraint("Vertical", 4, 2, 8, 2),
    Sketcher.Constraint("Vertical", 2, 2, 9, 2),
    Sketcher.Constraint("Vertical", 11, 2, 13, 2),
    Sketcher.Constraint("Vertical", 6, 2, 15, 2),
    Sketcher.Constraint("Vertical", 8, 2, 16, 2),
    Sketcher.Constraint("Vertical", 7, 2, 17, 2),
    Sketcher.Constraint("Vertical", 15, 2, 18, 2),
    Sketcher.Constraint("Vertical", 20, 2, 22, 2),
    Sketcher.Constraint("Vertical", 19, 2, 23, 2),
    Sketcher.Constraint("Vertical", 18, 2, 24, 2),
    Sketcher.Constraint("Vertical", 24, 2, 28, 2),
    Sketcher.Constraint("Vertical", 14, 2, 29, 2),
    Sketcher.Constraint("Vertical", 13, 2, 30, 2),
    Sketcher.Constraint("Vertical", 31, 2, 32, 2),
    Sketcher.Constraint("Vertical", 30, 2, 33, 2),
    Sketcher.Constraint("Vertical", 29, 2, 34, 2),
    Sketcher.Constraint("Vertical", 34, 2, 36, 2),
    Sketcher.Constraint("Vertical", 33, 2, 37, 2),
    Sketcher.Constraint("Vertical", 32, 2, 38, 2),
    Sketcher.Constraint("Vertical", 37, 2, 39, 2),
    Sketcher.Constraint("Vertical", 38, 2, 44, 2),
    Sketcher.Constraint("Vertical", 45, 2, 47, 2),
    Sketcher.Constraint("Vertical", 46, 2, 48, 2),
    Sketcher.Constraint("Vertical", 50, 2, 52, 2),
    Sketcher.Constraint("Vertical", 49, 2, 53, 2),
    Sketcher.Constraint("Vertical", 27, 2, 59, 2),
    Sketcher.Constraint("Vertical", 60, 2, 63, 2),
    Sketcher.Constraint("Vertical", 61, 2, 64, 2),
    Sketcher.Constraint("Vertical", 64, 2, 70, 2),
    Sketcher.Constraint("Vertical", 63, 2, 71, 2),
    Sketcher.Constraint("Vertical", 66, 2, 72, 2),
    Sketcher.Constraint("Vertical", 71, 2, 73, 2),
    Sketcher.Constraint("Vertical", 69, 2, 76, 2),
    Sketcher.Constraint("Vertical", 78, 2, 79, 2),
    Sketcher.Constraint("Equal", 1, 5),
    Sketcher.Constraint("Equal", 8, 11),
    Sketcher.Constraint("Equal", 40, 58),
    Sketcher.Constraint("Equal", 9, 10),
    Sketcher.Constraint("DistanceY", 42, 2, 42, 1, 10.0),
    Sketcher.Constraint("Angle", 0, Q("60 deg")),
    Sketcher.Constraint("DistanceY", -1, 1, 2, 2, 8.0),
    Sketcher.Constraint("DistanceY", -1, 1, 4, 2, 32.0),
    Sketcher.Constraint("DistanceY", -1, 1, 10, 2, 26.0),
    Sketcher.Constraint("DistanceY", -1, 1, 16, 2, 45.0),
    Sketcher.Constraint("DistanceY", -1, 1, 22, 2, 19.0),
    Sketcher.Constraint("DistanceY", -1, 1, 32, 2, 47.0),
    Sketcher.Constraint("DistanceY", -1, 1, 36, 2, 39.0),
    Sketcher.Constraint("Distance", 0, 5.427002),
    Sketcher.Constraint("DistanceX", 43, 2, 43, 1, 2.886751),
    Sketcher.Constraint("DistanceX", 1, 1, 1, 2, 5.773503),
    Sketcher.Constraint("DistanceX", 2, 2, -1, 1, 8.581241),
    Sketcher.Constraint("DistanceX", 67, 2, -1, 1, 22.437648),
    Sketcher.Constraint("DistanceY", -1, 1, 70, 2, 25.363217),
])
pocket3 = doc.addObject("PartDesign::Pocket", "Pocket002")
body.addObject(pocket3)
pocket3.Profile = sketch6
pocket3.Length = 10
pocket3.Reversed = True

sketch7 = doc.addObject("Sketcher::SketchObject", "Sketch006")
body.addObject(sketch7)
sketch7.AttachmentSupport = (doc.XY_Plane, [""])
sketch7.MapMode = "FlatFace"
sketch7.AttachmentOffset = App.Placement(Vector(0, 0, 55), App.Rotation())
sketch7.addGeometry([
    Part.BSplineCurve([Vector(-18.9179, 31.8128, 0), Vector(-9.790862, 24.90372, 0), Vector(-4.107444, 23.050599, 0)], [3, 3], [0, 1], False, 2, [1, 1, 1], False),
    Part.BSplineCurve([Vector(-18.9179, 31.8128, 0), Vector(-15.516775, 16.806949, 0), Vector(-4.107444, 23.050599, 0)], [3, 3], [0, 1], False, 2, [1, 1, 1], False),
    Part.BSplineCurve([Vector(18.9179, 31.8128, 0), Vector(9.790862, 24.90372, 0), Vector(4.107444, 23.050599, 0)], [3, 3], [0, 1], False, 2, [1, 1, 1], False),
    Part.BSplineCurve([Vector(18.9179, 31.8128, 0), Vector(15.516775, 16.806949, 0), Vector(4.107444, 23.050599, 0)], [3, 3], [0, 1], False, 2, [1, 1, 1], False),
], False)
sketch7.addConstraint([
    Sketcher.Constraint("Block", 0),
    Sketcher.Constraint("Block", 1),
    Sketcher.Constraint("Block", 2),
    Sketcher.Constraint("Block", 3),
])
pocket4 = doc.addObject("PartDesign::Pocket", "Pocket003")
body.addObject(pocket4)
pocket4.Profile = sketch7
pocket4.Length = 10

doc.recompute()
